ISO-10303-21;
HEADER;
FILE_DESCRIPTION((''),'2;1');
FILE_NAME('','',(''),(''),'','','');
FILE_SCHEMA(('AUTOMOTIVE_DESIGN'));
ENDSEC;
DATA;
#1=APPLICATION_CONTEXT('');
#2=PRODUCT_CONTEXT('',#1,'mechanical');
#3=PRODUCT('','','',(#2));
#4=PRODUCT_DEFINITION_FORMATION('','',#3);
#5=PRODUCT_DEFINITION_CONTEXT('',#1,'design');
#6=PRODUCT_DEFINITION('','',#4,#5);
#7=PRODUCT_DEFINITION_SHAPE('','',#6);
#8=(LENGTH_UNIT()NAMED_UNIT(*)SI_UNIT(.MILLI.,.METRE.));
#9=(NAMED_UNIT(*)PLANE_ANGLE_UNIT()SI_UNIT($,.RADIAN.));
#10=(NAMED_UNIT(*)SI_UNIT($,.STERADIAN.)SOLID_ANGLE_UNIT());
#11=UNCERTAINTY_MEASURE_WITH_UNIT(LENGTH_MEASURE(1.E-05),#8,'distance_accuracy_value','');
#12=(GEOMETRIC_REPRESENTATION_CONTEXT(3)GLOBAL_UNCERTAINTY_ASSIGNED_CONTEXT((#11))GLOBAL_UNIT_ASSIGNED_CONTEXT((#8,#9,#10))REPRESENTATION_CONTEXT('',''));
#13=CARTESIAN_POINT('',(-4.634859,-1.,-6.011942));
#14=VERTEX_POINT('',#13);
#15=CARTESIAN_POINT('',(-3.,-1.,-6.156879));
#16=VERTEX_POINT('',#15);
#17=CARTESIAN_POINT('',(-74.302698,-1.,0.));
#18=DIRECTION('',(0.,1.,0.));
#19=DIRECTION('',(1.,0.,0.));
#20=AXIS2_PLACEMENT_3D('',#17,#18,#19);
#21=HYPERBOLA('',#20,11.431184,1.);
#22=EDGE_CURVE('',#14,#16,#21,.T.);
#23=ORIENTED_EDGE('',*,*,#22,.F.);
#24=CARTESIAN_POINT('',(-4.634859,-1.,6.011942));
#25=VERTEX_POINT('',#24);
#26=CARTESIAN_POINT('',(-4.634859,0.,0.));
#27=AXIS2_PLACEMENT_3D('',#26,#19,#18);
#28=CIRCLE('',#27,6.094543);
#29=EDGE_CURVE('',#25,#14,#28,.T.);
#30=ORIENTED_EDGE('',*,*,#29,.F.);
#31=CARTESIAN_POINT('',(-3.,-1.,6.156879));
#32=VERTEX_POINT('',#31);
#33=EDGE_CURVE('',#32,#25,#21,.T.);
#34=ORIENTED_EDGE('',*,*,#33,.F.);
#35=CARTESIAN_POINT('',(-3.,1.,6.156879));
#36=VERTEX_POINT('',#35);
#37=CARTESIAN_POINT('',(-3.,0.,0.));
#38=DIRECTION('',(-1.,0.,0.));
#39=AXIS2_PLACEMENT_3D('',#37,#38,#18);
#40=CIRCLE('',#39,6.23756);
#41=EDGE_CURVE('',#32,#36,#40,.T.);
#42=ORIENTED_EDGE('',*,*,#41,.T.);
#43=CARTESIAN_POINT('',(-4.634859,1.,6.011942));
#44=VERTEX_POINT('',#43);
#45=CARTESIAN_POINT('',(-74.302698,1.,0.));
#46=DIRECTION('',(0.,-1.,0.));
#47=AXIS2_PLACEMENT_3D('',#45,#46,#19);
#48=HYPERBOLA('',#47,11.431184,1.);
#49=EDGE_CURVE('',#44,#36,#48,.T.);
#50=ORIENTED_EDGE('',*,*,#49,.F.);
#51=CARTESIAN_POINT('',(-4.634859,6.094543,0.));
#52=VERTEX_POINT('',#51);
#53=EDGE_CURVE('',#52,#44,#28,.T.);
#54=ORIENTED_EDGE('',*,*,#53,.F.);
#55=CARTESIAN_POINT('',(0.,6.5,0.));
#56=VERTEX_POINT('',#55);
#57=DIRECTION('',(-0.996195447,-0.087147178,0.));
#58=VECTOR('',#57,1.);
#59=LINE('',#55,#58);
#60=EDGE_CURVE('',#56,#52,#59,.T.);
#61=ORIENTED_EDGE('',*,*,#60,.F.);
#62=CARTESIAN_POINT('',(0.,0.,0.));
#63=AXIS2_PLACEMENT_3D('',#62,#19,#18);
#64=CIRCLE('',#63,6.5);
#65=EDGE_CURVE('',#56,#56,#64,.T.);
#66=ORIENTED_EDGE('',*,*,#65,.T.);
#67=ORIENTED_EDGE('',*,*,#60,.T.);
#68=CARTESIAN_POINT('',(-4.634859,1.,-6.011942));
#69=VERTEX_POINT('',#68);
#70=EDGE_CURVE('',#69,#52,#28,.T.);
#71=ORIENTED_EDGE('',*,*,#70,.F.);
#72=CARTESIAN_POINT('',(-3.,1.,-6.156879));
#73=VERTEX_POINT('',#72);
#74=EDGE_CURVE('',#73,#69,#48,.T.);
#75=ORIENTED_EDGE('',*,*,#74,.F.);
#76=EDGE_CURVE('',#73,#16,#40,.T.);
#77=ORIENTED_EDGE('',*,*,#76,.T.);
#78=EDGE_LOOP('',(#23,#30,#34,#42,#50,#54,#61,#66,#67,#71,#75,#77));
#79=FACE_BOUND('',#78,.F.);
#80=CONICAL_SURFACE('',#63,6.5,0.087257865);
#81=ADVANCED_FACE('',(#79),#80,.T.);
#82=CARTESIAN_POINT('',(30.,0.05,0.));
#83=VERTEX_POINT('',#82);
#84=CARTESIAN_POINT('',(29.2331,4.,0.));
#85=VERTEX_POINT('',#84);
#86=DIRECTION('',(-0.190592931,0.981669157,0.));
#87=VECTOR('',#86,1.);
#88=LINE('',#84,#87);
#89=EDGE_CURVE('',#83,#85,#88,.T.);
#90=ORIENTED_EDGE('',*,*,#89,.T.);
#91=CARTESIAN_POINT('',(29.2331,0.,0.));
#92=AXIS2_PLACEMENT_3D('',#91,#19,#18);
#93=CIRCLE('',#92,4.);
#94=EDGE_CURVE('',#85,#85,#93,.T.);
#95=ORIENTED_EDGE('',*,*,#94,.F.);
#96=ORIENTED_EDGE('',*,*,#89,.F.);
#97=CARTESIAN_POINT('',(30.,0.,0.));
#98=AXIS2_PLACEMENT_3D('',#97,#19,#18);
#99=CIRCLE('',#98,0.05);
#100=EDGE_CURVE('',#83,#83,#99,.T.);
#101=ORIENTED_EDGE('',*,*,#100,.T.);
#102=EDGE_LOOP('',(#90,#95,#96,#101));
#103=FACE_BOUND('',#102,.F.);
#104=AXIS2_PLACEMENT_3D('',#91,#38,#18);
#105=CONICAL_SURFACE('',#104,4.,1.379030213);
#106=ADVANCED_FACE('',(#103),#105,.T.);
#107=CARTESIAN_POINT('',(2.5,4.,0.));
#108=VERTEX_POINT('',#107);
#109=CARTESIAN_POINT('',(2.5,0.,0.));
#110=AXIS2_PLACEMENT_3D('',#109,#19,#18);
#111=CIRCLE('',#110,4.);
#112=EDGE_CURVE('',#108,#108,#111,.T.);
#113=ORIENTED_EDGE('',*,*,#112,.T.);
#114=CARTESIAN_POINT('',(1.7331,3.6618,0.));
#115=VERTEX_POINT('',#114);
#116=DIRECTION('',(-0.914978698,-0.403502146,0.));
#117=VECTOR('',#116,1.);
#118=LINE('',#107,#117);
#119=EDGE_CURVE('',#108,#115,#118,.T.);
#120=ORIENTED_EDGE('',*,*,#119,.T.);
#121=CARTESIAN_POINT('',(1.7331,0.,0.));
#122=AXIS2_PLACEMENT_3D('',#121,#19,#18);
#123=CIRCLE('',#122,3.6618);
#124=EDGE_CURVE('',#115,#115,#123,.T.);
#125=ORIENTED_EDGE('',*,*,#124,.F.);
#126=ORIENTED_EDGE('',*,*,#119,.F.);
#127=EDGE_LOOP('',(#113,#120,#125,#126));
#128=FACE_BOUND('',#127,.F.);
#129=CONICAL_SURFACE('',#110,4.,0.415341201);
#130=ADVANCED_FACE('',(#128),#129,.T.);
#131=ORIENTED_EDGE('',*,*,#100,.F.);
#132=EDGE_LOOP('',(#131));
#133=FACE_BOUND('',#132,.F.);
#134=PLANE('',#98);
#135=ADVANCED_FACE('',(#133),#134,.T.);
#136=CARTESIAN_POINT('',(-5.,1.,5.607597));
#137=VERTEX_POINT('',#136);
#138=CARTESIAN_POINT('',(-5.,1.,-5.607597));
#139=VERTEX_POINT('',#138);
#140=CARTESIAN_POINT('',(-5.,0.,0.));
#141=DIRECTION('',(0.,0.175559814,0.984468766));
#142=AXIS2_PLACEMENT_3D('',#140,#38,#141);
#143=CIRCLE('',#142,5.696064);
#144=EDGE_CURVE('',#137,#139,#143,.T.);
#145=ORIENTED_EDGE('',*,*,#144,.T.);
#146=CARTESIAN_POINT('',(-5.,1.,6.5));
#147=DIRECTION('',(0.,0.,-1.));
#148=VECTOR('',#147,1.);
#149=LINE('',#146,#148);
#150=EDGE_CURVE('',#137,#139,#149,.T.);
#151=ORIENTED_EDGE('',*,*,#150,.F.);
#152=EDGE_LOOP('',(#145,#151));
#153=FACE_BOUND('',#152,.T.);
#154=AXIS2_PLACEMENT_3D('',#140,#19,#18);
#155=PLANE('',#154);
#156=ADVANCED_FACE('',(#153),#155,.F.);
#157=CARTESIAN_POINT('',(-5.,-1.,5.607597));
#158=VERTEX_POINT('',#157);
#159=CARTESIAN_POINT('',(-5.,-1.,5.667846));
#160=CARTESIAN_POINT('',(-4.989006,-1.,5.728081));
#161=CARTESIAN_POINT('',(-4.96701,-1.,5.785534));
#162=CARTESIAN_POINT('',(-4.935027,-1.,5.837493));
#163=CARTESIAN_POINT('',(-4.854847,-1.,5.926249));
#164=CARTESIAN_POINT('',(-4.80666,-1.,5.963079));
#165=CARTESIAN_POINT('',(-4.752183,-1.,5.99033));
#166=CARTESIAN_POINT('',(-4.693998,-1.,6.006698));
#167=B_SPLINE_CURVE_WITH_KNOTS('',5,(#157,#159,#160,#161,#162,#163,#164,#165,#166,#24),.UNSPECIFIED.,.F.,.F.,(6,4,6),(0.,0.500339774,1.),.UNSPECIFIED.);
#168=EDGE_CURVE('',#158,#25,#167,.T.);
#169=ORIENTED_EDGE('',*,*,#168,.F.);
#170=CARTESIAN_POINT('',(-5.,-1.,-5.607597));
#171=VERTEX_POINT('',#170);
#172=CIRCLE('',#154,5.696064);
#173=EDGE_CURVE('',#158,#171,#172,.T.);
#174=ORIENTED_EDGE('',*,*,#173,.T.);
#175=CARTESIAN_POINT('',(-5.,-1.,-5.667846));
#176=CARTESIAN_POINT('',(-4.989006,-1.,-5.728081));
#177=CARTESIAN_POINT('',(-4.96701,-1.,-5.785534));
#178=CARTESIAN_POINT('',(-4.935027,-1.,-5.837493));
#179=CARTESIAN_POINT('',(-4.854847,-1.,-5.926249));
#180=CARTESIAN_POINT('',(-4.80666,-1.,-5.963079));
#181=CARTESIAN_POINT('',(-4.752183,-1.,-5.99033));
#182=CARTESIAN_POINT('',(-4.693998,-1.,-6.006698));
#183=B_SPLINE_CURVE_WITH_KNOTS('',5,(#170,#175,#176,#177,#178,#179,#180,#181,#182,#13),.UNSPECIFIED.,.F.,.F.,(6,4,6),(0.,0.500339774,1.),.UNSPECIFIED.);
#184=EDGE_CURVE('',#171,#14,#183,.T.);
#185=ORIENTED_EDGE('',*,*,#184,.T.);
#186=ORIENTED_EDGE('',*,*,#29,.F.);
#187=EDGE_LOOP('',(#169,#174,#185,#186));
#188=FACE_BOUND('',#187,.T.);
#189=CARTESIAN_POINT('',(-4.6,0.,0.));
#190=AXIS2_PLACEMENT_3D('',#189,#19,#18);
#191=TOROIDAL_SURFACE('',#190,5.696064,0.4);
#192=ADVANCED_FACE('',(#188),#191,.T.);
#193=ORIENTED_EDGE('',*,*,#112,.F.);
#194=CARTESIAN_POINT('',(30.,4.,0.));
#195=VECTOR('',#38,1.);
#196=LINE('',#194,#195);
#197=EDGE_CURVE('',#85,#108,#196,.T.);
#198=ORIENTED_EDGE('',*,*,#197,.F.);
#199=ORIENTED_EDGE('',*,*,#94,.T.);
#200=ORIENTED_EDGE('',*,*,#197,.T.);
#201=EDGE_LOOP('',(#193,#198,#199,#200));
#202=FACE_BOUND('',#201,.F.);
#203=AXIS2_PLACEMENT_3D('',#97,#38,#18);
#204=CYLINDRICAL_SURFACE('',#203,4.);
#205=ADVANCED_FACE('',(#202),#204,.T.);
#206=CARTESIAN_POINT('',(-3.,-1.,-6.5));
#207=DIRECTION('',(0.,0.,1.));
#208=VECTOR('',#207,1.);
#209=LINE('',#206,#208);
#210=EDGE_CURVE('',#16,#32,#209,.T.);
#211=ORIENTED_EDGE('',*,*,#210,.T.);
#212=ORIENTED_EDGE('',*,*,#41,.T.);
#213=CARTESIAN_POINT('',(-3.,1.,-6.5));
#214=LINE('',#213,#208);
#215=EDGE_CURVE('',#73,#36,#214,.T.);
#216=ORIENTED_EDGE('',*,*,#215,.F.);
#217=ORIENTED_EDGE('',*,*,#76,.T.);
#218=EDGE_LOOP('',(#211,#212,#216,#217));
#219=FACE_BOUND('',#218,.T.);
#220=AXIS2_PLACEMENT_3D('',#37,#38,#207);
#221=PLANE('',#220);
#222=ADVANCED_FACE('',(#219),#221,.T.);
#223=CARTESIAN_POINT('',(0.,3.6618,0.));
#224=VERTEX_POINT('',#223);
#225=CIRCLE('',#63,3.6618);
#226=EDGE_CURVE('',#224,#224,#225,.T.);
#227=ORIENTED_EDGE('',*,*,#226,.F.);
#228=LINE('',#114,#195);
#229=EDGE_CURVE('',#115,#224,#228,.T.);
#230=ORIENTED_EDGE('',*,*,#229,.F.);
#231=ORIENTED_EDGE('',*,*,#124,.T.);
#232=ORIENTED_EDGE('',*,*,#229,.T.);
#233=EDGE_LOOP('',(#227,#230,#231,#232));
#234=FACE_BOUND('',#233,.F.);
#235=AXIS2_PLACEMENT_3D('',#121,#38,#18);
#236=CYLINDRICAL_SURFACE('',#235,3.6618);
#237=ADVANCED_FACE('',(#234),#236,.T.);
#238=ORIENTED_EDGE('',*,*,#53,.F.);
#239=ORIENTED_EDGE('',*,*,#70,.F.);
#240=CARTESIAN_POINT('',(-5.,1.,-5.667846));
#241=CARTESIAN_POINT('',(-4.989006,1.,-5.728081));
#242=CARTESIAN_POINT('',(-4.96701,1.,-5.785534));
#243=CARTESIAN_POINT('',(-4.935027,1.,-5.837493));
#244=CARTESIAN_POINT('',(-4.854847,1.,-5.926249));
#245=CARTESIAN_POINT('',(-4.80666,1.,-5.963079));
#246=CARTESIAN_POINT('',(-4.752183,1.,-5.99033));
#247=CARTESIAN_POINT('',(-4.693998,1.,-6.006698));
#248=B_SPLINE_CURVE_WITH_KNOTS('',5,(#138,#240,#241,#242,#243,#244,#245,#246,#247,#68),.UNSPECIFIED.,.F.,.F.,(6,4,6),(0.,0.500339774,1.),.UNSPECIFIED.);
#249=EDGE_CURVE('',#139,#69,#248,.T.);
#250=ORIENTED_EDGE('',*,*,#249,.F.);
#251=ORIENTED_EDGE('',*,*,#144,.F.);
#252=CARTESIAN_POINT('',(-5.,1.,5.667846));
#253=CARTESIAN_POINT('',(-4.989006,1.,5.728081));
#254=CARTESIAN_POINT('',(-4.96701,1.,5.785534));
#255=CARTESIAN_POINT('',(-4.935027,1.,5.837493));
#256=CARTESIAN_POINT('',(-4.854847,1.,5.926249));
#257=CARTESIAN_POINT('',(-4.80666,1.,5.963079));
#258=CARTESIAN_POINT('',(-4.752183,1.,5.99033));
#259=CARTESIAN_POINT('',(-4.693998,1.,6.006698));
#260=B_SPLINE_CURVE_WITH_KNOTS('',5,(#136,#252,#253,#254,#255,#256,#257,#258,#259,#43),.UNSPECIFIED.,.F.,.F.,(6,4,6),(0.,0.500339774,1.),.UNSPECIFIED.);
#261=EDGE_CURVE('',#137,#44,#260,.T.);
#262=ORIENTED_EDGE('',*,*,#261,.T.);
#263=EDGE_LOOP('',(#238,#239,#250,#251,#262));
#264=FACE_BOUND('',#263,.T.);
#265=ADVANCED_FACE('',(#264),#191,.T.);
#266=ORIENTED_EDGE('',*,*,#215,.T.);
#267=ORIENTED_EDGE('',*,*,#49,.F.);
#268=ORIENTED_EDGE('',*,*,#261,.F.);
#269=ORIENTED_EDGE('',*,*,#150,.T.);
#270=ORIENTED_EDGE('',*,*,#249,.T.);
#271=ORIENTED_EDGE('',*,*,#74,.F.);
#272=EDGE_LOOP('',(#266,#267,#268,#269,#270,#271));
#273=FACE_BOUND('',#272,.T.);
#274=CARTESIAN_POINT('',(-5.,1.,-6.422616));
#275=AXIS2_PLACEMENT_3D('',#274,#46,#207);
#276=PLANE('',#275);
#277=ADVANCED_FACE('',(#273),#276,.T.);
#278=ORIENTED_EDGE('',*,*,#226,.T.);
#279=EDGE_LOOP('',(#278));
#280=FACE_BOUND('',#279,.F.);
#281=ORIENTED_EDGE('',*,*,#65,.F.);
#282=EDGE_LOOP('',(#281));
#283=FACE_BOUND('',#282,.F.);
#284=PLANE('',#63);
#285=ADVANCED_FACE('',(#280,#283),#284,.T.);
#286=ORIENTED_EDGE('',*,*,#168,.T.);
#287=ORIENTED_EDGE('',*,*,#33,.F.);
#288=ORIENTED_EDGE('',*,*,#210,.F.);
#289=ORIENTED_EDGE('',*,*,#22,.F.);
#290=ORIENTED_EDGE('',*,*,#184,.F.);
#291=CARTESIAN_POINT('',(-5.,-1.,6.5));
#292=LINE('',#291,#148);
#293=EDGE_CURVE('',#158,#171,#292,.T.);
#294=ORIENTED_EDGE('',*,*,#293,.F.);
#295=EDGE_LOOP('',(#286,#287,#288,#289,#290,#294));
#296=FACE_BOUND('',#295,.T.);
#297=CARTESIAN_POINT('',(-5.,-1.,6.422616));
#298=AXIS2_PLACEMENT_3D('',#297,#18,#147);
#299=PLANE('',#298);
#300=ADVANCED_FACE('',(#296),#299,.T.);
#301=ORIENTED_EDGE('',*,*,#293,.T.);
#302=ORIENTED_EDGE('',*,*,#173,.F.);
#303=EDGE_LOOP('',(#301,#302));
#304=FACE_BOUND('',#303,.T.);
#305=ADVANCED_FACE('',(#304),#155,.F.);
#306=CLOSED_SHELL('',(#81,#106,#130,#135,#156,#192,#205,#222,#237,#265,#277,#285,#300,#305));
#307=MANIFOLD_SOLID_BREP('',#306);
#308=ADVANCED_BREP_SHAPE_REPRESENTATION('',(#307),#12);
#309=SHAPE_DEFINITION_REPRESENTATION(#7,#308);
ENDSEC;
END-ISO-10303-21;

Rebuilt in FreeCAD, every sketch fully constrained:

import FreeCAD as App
import Part
import Sketcher
Q = App.Units.Quantity


def edges_at(feature, points):
    """Names of the edges that pass closest to the given points."""
    edges = feature.Shape.Edges
    near = lambda p: min(range(len(edges)), key=lambda i: edges[i].distToShape(Part.Vertex(*p))[0])
    return sorted({f"Edge{near(p) + 1}" for p in points})

doc = App.newDocument("Part")
params = doc.addObject("Spreadsheet::Sheet", "Params")
for row, (alias, value) in enumerate([
    ("sketch1_width", "27.5 mm"),
    ("sketch1_height", "4 mm"),
    ("revolution_angle", "360 deg"),
    ("fillet_radius", "0.4 mm"),
    ("sketch2_width", "2 mm"),
    ("sketch2_height", "13 mm"),
    ("pocket1_length", "2 mm"),
    ("chamfer_size", "3.95 mm"),
    ("chamfer_size2", "0.7669 mm"),
], start=1):
    params.set(f"A{row}", alias)
    params.set(f"B{row}", "=" + value)
    params.setAlias(f"B{row}", alias)

body = doc.addObject("PartDesign::Body", "Body")

# Sketch on XY plane
sketch1 = doc.addObject("Sketcher::SketchObject", "Sketch")
body.addObject(sketch1)
sketch1.AttachmentSupport = (doc.XY_Plane, [""])
sketch1.MapMode = "FlatFace"
sketch1.addGeometry([
    Part.LineSegment(App.Vector(-5, 6.0626, 0), App.Vector(-5, 0, 0)),  # 0
    Part.LineSegment(App.Vector(-5, 0, 0), App.Vector(30, 0, 0)),  # 1
    Part.LineSegment(App.Vector(30, 0, 0), App.Vector(30, 4, 0)),  # 2
    Part.LineSegment(App.Vector(30, 4, 0), App.Vector(2.5, 4, 0)),  # 3
    Part.LineSegment(App.Vector(2.5, 4, 0), App.Vector(1.7331, 3.6618, 0)),  # 4
    Part.LineSegment(App.Vector(1.7331, 3.6618, 0), App.Vector(0, 3.6618, 0)),  # 5
    Part.LineSegment(App.Vector(0, 3.6618, 0), App.Vector(0, 6.5, 0)),  # 6
    Part.LineSegment(App.Vector(0, 6.5, 0), App.Vector(-5, 6.0626, 0)),  # 7
], False)
sketch1.addConstraint([
    Sketcher.Constraint("Coincident", 0, 2, 1, 1),
    Sketcher.Constraint("Coincident", 1, 2, 2, 1),
    Sketcher.Constraint("Coincident", 2, 2, 3, 1),
    Sketcher.Constraint("Coincident", 3, 2, 4, 1),
    Sketcher.Constraint("Coincident", 4, 2, 5, 1),
    Sketcher.Constraint("Coincident", 5, 2, 6, 1),
    Sketcher.Constraint("Coincident", 6, 2, 7, 1),
    Sketcher.Constraint("Coincident", 7, 2, 0, 1),
    Sketcher.Constraint("Vertical", 0),
    Sketcher.Constraint("Horizontal", 1),
    Sketcher.Constraint("Vertical", 2),
    Sketcher.Constraint("Horizontal", 3),
    Sketcher.Constraint("Horizontal", 5),
    Sketcher.Constraint("Vertical", 6),
    Sketcher.Constraint("PointOnObject", 0, 2, -1),
    Sketcher.Constraint("PointOnObject", 5, 2, -2),
    Sketcher.Constraint("DistanceX", 3, 2, 3, 1, 27.5),
    Sketcher.Constraint("DistanceX", 0, 2, -1, 1, 5.0),
    Sketcher.Constraint("DistanceX", -1, 1, 1, 2, 30.0),
    Sketcher.Constraint("DistanceY", 2, 1, 2, 2, 4.0),
    Sketcher.Constraint("Angle", 7, Q("-175.0005 deg")),
    Sketcher.Constraint("DistanceX", 4, 2, 3, 2, 0.767),
    Sketcher.Constraint("DistanceY", -1, 1, 6, 2, 6.5),
    Sketcher.Constraint("DistanceY", 6, 1, 6, 2, 2.8382),
])
sketch1.setExpression("Constraints[16]", "Params.sketch1_width")
sketch1.setExpression("Constraints[19]", "Params.sketch1_height")
revolution = doc.addObject("PartDesign::Revolution", "Revolution")
body.addObject(revolution)
revolution.Profile = sketch1
revolution.ReferenceAxis = (sketch1, ["H_Axis"])
revolution.setExpression("Angle", "Params.revolution_angle")
doc.recompute()

fillet = doc.addObject("PartDesign::Fillet", "Fillet")
body.addObject(fillet)
fillet.Base = (revolution, edges_at(revolution, [(-5, -6.063, 0)]))
fillet.setExpression("Radius", "Params.fillet_radius")

# Sketch on YZ plane
sketch2 = doc.addObject("Sketcher::SketchObject", "Sketch001")
body.addObject(sketch2)
sketch2.AttachmentSupport = (doc.YZ_Plane, [""])
sketch2.MapMode = "FlatFace"
sketch2.AttachmentOffset = App.Placement(App.Vector(0, 0, -5), App.Rotation())
sketch2.addGeometry([
    Part.LineSegment(App.Vector(-1, 6.5, 0), App.Vector(1, 6.5, 0)),
    Part.LineSegment(App.Vector(1, 6.5, 0), App.Vector(1, -6.5, 0)),
    Part.LineSegment(App.Vector(1, -6.5, 0), App.Vector(-1, -6.5, 0)),
    Part.LineSegment(App.Vector(-1, -6.5, 0), App.Vector(-1, 6.5, 0)),
], False)
sketch2.addConstraint([
    Sketcher.Constraint("Coincident", 0, 2, 1, 1),
    Sketcher.Constraint("Coincident", 1, 2, 2, 1),
    Sketcher.Constraint("Coincident", 2, 2, 3, 1),
    Sketcher.Constraint("Coincident", 3, 2, 0, 1),
    Sketcher.Constraint("Horizontal", 0),
    Sketcher.Constraint("Vertical", 1),
    Sketcher.Constraint("Horizontal", 2),
    Sketcher.Constraint("Vertical", 3),
    Sketcher.Constraint("Symmetric", 0, 2, 2, 2, -1, 1),
    Sketcher.Constraint("DistanceX", 0, 1, 0, 2, 2.0),
    Sketcher.Constraint("DistanceY", 1, 2, 1, 1, 13.0),
])
sketch2.setExpression("Constraints[9]", "Params.sketch2_width")
sketch2.setExpression("Constraints[10]", "Params.sketch2_height")
pocket1 = doc.addObject("PartDesign::Pocket", "Pocket")
body.addObject(pocket1)
pocket1.Profile = sketch2
pocket1.setExpression("Length", "Params.pocket1_length")
pocket1.Reversed = True
doc.recompute()

chamfer = doc.addObject("PartDesign::Chamfer", "Chamfer")
body.addObject(chamfer)
chamfer.Base = (pocket1, edges_at(pocket1, [(30, -4, 0)]))
chamfer.ChamferType = "Two distances"
chamfer.setExpression("Size", "Params.chamfer_size")
chamfer.setExpression("Size2", "Params.chamfer_size2")
chamfer.FlipDirection = True

doc.recompute()
